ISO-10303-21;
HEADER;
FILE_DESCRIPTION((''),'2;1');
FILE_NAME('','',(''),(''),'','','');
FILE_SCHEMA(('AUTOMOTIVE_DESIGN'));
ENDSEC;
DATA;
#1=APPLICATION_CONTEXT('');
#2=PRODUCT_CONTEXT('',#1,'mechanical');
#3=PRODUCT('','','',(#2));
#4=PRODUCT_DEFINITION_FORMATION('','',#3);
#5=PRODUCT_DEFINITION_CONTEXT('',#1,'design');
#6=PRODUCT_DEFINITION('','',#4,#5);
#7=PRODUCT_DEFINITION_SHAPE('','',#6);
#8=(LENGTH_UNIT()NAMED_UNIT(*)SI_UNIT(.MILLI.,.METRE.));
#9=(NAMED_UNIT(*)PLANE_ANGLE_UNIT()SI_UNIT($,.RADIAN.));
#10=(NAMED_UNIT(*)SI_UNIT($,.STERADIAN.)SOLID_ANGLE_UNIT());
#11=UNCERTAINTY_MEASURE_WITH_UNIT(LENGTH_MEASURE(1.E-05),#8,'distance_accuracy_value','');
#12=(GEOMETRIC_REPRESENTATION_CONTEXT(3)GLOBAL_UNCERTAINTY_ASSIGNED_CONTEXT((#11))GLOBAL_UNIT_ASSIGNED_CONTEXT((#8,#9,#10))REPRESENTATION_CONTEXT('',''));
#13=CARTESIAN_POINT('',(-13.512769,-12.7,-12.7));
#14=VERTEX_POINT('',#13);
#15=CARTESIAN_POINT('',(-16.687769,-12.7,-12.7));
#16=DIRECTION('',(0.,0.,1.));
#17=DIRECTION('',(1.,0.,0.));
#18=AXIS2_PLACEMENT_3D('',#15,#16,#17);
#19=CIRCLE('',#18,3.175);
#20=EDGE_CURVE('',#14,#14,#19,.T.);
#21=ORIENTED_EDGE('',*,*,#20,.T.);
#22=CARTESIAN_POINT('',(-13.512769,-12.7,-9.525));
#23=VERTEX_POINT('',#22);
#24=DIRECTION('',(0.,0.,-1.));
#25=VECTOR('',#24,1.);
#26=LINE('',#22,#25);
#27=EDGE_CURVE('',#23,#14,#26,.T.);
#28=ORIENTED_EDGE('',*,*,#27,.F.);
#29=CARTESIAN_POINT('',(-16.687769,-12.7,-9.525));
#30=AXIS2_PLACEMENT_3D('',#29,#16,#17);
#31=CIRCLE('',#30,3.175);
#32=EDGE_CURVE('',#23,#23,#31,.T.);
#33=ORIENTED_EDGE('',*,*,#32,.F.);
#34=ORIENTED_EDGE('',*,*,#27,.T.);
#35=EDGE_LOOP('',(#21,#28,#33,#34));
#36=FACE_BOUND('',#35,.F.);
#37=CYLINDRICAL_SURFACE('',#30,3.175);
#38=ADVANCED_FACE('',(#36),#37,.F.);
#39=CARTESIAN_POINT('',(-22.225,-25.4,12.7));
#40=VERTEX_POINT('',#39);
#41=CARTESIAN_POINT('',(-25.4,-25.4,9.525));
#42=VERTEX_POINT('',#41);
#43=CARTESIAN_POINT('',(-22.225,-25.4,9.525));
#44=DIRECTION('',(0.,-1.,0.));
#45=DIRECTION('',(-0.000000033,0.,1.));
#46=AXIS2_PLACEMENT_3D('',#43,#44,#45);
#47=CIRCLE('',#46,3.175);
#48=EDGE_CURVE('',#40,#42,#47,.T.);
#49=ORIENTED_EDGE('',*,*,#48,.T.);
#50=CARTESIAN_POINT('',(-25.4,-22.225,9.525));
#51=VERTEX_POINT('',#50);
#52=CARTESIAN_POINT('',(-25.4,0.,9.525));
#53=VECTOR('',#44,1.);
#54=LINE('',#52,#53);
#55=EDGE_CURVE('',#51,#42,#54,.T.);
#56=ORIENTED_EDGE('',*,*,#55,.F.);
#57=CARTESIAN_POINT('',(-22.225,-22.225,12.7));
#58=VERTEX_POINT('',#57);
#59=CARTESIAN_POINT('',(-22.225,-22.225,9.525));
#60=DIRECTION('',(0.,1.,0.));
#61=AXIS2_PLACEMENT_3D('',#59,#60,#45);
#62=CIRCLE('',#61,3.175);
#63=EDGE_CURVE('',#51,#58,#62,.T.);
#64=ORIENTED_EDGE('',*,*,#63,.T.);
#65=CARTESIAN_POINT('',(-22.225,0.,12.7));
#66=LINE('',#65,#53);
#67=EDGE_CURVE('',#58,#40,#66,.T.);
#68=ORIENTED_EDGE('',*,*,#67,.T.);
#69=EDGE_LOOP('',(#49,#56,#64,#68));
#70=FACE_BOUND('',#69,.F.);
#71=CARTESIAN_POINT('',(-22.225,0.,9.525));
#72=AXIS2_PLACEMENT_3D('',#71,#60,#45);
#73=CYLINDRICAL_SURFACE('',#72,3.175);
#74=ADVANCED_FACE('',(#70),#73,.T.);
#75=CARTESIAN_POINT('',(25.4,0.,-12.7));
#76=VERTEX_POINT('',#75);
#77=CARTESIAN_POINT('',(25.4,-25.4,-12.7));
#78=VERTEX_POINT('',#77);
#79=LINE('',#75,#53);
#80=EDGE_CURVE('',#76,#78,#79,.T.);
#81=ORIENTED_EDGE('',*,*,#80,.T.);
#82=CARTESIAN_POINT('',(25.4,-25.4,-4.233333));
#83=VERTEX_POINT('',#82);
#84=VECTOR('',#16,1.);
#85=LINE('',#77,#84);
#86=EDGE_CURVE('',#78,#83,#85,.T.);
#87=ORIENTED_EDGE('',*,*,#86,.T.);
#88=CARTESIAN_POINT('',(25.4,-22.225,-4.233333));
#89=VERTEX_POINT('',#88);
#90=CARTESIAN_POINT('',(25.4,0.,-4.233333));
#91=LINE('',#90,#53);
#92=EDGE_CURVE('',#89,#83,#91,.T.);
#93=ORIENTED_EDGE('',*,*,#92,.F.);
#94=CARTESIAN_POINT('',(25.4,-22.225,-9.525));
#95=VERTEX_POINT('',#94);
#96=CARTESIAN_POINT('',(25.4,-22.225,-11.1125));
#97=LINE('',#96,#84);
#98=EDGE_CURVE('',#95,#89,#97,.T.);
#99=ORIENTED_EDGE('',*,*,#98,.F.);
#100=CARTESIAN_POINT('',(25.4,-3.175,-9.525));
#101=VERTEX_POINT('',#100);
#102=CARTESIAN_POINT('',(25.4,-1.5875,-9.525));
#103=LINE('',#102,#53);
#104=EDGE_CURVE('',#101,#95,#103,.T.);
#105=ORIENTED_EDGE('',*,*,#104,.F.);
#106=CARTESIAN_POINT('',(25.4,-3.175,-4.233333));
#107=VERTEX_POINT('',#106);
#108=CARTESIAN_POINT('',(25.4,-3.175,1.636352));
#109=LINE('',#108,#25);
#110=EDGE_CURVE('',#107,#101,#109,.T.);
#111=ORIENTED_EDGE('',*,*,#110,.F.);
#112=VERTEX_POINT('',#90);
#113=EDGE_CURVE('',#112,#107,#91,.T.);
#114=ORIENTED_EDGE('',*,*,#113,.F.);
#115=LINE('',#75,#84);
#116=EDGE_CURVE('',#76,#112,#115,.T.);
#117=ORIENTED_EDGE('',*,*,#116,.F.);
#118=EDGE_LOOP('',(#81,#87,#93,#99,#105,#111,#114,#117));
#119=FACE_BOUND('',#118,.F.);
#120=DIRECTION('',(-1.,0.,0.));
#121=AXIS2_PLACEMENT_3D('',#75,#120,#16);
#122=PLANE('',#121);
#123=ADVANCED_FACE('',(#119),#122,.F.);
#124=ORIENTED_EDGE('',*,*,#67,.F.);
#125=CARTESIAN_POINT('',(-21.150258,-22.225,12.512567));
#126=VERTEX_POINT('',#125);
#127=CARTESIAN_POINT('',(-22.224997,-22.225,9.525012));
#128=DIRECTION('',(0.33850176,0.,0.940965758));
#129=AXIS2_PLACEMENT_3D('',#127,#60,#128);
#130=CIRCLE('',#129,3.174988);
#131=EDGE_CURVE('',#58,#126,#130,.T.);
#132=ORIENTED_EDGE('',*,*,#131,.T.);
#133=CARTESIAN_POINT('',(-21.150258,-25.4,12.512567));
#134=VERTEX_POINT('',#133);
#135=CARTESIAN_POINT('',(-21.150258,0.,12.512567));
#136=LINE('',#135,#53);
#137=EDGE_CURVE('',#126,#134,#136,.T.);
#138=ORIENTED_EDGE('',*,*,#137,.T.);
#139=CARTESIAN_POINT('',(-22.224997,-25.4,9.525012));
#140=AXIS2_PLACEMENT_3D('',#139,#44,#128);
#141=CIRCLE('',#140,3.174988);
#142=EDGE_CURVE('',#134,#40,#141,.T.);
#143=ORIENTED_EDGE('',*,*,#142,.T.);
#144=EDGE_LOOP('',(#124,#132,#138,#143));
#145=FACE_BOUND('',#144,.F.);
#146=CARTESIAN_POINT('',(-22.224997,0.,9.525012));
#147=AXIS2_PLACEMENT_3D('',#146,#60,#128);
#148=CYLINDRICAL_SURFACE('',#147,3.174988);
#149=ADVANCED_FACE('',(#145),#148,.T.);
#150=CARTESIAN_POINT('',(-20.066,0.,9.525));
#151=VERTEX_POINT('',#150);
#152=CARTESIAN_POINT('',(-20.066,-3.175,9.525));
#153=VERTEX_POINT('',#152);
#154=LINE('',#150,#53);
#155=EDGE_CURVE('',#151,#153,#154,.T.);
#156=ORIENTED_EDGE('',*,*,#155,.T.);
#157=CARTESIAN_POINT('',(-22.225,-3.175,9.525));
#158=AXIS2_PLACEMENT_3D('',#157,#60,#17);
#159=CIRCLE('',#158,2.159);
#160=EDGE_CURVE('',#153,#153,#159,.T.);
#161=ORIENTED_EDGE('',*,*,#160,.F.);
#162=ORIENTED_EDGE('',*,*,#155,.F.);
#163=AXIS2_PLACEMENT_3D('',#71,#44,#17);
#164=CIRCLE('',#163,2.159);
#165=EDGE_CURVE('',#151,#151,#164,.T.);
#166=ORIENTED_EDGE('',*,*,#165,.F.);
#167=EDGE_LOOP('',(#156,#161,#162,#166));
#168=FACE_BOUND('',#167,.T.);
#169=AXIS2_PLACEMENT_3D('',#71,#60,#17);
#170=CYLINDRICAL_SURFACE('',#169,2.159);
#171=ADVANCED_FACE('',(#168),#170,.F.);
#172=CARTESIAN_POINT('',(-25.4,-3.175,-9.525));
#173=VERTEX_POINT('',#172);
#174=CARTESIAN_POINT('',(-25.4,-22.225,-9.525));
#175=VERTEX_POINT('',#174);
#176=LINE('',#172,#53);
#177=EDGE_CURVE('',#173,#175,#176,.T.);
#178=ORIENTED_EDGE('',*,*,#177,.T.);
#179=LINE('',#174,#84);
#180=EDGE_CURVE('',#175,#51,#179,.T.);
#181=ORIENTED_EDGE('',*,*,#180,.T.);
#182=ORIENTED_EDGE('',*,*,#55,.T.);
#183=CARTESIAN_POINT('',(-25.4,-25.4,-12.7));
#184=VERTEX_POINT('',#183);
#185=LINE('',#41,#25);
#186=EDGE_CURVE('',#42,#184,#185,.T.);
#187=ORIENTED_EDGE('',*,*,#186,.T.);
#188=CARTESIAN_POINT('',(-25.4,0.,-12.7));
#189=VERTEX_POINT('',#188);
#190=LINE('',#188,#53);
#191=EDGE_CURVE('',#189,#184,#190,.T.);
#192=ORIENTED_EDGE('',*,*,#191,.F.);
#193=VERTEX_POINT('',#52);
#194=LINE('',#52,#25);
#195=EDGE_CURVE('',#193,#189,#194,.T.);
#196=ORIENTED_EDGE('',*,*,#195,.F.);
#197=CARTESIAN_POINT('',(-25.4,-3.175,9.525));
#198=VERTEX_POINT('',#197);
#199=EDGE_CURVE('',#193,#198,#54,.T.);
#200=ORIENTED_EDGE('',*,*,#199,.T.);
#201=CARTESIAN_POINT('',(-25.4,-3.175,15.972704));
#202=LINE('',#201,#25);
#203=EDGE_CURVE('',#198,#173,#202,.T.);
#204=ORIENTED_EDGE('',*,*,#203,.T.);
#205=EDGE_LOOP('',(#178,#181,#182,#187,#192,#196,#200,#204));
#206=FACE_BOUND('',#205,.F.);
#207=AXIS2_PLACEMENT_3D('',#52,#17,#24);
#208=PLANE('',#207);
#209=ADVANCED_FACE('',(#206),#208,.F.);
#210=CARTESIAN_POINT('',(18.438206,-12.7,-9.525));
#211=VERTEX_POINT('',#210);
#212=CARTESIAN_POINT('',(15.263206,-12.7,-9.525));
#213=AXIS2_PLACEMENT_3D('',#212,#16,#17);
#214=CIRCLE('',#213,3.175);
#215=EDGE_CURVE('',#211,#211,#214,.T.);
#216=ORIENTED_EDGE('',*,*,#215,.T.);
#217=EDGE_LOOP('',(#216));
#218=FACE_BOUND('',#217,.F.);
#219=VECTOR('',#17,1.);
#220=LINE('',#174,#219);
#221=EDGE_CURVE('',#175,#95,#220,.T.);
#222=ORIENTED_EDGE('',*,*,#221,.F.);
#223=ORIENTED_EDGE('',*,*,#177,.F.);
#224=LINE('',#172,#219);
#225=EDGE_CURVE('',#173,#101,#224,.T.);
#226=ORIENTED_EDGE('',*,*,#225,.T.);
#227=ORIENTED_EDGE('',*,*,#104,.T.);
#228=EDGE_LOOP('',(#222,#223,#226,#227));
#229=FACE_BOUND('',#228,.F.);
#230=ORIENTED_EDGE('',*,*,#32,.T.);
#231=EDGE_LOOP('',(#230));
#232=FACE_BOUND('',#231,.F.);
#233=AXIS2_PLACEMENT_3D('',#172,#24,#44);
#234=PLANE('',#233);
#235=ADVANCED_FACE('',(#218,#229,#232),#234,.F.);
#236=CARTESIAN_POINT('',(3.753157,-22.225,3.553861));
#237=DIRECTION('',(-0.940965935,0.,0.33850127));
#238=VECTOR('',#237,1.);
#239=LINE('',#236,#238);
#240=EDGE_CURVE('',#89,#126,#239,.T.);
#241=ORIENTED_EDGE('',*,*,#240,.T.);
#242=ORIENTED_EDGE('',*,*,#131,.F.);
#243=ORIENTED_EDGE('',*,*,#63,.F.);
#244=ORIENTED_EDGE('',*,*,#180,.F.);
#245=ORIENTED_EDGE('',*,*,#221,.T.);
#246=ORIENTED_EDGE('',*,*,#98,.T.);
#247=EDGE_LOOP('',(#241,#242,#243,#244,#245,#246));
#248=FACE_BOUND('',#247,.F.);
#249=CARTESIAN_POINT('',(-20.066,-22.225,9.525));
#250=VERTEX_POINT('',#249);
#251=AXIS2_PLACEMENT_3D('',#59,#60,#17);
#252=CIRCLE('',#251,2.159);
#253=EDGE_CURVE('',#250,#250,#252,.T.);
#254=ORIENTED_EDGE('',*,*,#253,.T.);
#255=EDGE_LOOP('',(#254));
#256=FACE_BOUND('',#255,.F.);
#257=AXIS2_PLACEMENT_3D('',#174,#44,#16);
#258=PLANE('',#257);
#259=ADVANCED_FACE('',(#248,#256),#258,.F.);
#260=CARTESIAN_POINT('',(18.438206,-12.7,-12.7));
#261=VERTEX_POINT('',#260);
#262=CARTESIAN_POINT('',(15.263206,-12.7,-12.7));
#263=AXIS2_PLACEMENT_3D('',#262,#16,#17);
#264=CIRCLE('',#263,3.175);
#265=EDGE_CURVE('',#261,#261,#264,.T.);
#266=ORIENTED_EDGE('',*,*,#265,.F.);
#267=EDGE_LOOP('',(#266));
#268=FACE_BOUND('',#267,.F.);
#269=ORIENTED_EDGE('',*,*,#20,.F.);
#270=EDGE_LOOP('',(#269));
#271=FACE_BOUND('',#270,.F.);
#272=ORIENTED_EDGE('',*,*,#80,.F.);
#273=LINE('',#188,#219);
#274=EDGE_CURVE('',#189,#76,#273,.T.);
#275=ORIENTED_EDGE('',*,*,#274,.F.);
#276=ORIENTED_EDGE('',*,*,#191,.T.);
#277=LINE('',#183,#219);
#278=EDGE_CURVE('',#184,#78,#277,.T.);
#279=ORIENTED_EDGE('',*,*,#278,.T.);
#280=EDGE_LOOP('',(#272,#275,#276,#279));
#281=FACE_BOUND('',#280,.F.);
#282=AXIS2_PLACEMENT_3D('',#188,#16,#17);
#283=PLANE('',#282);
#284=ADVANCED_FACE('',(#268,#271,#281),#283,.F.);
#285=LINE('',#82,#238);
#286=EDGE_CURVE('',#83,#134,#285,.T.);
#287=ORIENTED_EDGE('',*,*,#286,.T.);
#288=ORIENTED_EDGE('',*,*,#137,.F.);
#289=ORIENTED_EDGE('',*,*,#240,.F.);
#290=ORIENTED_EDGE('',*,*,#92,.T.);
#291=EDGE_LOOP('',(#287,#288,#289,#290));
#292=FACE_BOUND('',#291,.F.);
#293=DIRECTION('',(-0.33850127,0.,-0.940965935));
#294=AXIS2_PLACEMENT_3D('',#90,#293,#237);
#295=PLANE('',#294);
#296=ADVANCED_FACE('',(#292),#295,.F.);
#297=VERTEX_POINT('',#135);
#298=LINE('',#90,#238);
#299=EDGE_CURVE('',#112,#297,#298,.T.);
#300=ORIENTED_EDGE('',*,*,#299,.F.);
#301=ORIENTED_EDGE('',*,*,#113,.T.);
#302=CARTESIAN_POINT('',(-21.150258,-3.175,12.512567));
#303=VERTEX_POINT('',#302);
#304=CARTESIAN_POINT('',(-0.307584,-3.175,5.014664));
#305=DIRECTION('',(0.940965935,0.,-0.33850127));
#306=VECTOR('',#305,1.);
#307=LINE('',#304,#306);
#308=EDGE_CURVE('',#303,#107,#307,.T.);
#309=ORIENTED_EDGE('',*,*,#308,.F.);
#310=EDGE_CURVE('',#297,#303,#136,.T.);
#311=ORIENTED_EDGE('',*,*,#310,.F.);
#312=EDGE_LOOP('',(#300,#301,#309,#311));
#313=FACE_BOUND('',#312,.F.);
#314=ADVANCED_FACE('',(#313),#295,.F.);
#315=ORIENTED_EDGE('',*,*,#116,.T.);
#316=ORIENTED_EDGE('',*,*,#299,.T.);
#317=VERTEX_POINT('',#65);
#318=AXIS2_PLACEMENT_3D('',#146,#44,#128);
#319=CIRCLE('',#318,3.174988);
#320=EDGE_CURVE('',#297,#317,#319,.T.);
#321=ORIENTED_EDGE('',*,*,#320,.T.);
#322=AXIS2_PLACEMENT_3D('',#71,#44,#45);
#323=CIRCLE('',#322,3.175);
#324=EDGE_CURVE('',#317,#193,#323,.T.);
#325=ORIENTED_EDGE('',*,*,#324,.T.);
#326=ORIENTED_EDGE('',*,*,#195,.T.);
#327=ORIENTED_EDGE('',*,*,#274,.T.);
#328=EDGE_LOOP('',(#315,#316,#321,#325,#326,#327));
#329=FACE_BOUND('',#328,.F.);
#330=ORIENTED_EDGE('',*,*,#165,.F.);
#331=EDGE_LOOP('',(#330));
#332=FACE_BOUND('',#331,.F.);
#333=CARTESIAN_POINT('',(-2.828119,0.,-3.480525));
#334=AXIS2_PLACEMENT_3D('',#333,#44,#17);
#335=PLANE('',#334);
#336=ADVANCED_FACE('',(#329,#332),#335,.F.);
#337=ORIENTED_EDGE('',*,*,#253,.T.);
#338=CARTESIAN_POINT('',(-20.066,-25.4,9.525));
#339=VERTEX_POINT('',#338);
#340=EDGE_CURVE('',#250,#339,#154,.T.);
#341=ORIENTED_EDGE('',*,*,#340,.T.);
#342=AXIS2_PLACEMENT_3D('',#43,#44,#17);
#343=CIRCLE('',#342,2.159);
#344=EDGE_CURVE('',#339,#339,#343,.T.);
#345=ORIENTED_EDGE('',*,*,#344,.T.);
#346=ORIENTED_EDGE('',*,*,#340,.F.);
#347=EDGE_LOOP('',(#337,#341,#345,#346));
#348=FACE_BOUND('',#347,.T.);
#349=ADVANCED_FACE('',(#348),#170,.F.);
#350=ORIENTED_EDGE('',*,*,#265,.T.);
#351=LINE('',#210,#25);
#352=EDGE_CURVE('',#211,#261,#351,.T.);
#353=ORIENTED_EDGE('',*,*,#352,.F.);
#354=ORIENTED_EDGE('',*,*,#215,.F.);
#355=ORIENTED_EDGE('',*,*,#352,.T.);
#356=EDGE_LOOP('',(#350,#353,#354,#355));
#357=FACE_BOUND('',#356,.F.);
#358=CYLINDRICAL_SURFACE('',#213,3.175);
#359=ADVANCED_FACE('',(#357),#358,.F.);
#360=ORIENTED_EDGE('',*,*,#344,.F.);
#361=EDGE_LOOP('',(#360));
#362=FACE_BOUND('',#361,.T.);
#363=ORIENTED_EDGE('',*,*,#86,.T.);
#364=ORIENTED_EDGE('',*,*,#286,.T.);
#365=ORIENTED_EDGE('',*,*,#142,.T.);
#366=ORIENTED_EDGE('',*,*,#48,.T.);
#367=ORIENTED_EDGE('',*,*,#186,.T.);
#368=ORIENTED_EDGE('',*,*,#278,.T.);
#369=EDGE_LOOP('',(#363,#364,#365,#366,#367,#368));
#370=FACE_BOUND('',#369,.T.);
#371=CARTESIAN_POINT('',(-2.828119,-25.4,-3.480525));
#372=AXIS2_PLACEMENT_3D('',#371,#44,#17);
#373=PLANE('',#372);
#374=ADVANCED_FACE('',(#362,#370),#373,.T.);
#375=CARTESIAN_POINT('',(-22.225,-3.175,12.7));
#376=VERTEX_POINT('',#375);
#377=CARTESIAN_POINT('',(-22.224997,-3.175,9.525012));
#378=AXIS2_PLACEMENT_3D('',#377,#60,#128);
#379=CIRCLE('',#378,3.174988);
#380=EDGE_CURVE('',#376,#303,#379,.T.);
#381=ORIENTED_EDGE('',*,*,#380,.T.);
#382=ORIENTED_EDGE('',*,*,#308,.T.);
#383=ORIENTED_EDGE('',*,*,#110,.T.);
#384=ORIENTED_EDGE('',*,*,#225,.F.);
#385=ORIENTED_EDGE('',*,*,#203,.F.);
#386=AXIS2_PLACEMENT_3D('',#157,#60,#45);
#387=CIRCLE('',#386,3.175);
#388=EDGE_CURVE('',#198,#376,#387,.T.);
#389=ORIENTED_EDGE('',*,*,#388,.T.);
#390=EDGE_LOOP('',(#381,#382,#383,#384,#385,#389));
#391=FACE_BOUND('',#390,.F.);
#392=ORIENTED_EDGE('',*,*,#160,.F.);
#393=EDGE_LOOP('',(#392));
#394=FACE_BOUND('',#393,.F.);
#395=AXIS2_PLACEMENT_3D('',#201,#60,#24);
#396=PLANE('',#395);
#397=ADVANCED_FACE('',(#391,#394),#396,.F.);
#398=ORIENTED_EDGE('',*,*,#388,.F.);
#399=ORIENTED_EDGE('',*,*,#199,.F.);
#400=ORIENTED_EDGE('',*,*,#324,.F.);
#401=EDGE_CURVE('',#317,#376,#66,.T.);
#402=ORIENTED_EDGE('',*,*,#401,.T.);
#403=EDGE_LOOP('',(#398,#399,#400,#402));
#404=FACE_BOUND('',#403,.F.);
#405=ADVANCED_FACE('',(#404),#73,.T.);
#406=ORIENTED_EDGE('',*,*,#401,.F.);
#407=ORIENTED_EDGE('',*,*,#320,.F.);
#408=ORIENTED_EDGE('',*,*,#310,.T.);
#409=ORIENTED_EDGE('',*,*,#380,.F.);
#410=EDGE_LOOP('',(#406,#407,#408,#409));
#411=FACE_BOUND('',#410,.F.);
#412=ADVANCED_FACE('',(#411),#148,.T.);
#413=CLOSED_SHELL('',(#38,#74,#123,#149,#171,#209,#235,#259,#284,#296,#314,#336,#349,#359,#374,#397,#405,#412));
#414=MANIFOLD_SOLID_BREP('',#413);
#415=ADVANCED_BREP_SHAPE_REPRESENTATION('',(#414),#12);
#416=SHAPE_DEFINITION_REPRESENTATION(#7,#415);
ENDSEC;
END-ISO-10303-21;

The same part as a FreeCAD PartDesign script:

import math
import FreeCAD as App
import Part
import Sketcher
from FreeCAD import Vector
Q = App.Units.Quantity

doc = App.newDocument("Part")
body = doc.addObject("PartDesign::Body", "Body")

# Sketch on XZ plane
sketch1 = body.newObject("Sketcher::SketchObject", "Sketch")
sketch1.AttachmentSupport = (doc.getObject("XZ_Plane"), [""])
sketch1.MapMode = "FlatFace"
sketch1.addGeometry([
    Part.ArcOfCircle(Part.Circle(Vector(-22.2, 9.5, 0), Vector(0, 0, 1), 3.2), math.radians(70.21), math.radians(90)),  # 0
    Part.ArcOfCircle(Part.Circle(Vector(-22.2, 9.5, 0), Vector(0, 0, 1), 3.2), math.radians(90), math.radians(180)),  # 1
    Part.LineSegment(Vector(-25.4, 9.5, 0), Vector(-25.4, -12.7, 0)),  # 2
    Part.LineSegment(Vector(-25.4, -12.7, 0), Vector(25.4, -12.7, 0)),  # 3
    Part.LineSegment(Vector(25.4, -12.7, 0), Vector(25.4, -4.2, 0)),  # 4
    Part.LineSegment(Vector(25.4, -4.2, 0), Vector(-21.2, 12.5, 0)),  # 5
    Part.Circle(Vector(-22.2, 9.5, 0), Vector(0, 0, 1), 2.2),  # 6
], False)
sketch1.addConstraint([
    Sketcher.Constraint("Tangent", 0, 2, 1, 1),
    Sketcher.Constraint("Tangent", 1, 2, 2, 1),
    Sketcher.Constraint("Coincident", 2, 2, 3, 1),
    Sketcher.Constraint("Coincident", 3, 2, 4, 1),
    Sketcher.Constraint("Coincident", 4, 2, 5, 1),
    Sketcher.Constraint("Tangent", 5, 2, 0, 1),
    Sketcher.Constraint("Vertical", 2),
    Sketcher.Constraint("Horizontal", 3),
    Sketcher.Constraint("Vertical", 4),
    Sketcher.Constraint("Coincident", 6, 3, 1, 3),
    Sketcher.Constraint("Vertical", 6, 3, 0, 2),
    Sketcher.Constraint("Diameter", 6, Q("0.17 in")),
    Sketcher.Constraint("DistanceX", 3, 1, 3, 2, Q("2 in")),
    Sketcher.Constraint("DistanceX", 1, 2, -1, 1, Q("1 in")),
    Sketcher.Constraint("Radius", 1, Q("0.125 in")),
    Sketcher.Constraint("DistanceY", 2, 2, 0, 2, Q("1 in")),
    Sketcher.Constraint("DistanceY", -1, 1, 0, 2, Q("0.5 in")),
    Sketcher.Constraint("Radius", 0, Q("3.174988 mm")),
    Sketcher.Constraint("DistanceY", 4, 1, 4, 2, Q("8.466667 mm")),
])
pad1 = body.newObject("PartDesign::Pad", "Pad")
pad1.Profile = sketch1
pad1.Length = Q("1 in")

# Sketch on YZ plane
sketch2 = body.newObject("Sketcher::SketchObject", "Sketch001")
sketch2.AttachmentSupport = (doc.getObject("YZ_Plane"), [""])
sketch2.MapMode = "FlatFace"
sketch2.AttachmentOffset = App.Placement(Vector(0, 0, -1 * 25.4), App.Rotation())
sketch2.addGeometry([
    Part.LineSegment(Vector(-3, 16, 0), Vector(-3, -10, 0)),
    Part.LineSegment(Vector(-3, -10, 0), Vector(-22, -10, 0)),
    Part.LineSegment(Vector(-22, -10, 0), Vector(-22, 16, 0)),
    Part.LineSegment(Vector(-22, 16, 0), Vector(-3, 16, 0)),
], False)
sketch2.addConstraint([
    Sketcher.Constraint("Coincident", 0, 2, 1, 1),
    Sketcher.Constraint("Coincident", 1, 2, 2, 1),
    Sketcher.Constraint("Coincident", 2, 2, 3, 1),
    Sketcher.Constraint("Coincident", 3, 2, 0, 1),
    Sketcher.Constraint("Vertical", 0),
    Sketcher.Constraint("Horizontal", 1),
    Sketcher.Constraint("Vertical", 2),
    Sketcher.Constraint("DistanceX", 1, 2, 1, 1, Q("0.75 in")),
    Sketcher.Constraint("DistanceX", 0, 2, -1, 1, Q("0.125 in")),
    Sketcher.Constraint("DistanceY", 0, 2, -1, 1, Q("0.375 in")),
    Sketcher.Constraint("DistanceY", 0, 2, 0, 1, Q("25.497704 mm")),
    Sketcher.Constraint("DistanceY", 2, 1, 2, 2, Q("26.001365 mm")),
])
pocket1 = body.newObject("PartDesign::Pocket", "Pocket")
pocket1.Profile = sketch2
pocket1.Type = "ThroughAll"
pocket1.Reversed = True

# Sketch on XY plane
sketch3 = body.newObject("Sketcher::SketchObject", "Sketch002")
sketch3.AttachmentSupport = (doc.getObject("XY_Plane"), [""])
sketch3.MapMode = "FlatFace"
sketch3.AttachmentOffset = App.Placement(Vector(0, 0, -0.375 * 25.4), App.Rotation())
sketch3.addGeometry([
    Part.Circle(Vector(-16.7, -12.7, 0), Vector(0, 0, 1), 3.2),
    Part.Circle(Vector(15.3, -12.7, 0), Vector(0, 0, 1), 3.2),
], False)
sketch3.addConstraint([
    Sketcher.Constraint("Equal", 0, 1),
    Sketcher.Constraint("Horizontal", 0, 3, 1, 3),
    Sketcher.Constraint("Diameter", 0, Q("0.25 in")),
    Sketcher.Constraint("DistanceY", 0, 3, -1, 1, Q("0.5 in")),
    Sketcher.Constraint("DistanceX", 0, 3, -1, 1, Q("16.687769 mm")),
    Sketcher.Constraint("DistanceX", -1, 1, 1, 3, Q("15.263206 mm")),
])
pocket2 = body.newObject("PartDesign::Pocket", "Pocket001")
pocket2.Profile = sketch3
pocket2.Length = Q("1 in")

doc.recompute()
